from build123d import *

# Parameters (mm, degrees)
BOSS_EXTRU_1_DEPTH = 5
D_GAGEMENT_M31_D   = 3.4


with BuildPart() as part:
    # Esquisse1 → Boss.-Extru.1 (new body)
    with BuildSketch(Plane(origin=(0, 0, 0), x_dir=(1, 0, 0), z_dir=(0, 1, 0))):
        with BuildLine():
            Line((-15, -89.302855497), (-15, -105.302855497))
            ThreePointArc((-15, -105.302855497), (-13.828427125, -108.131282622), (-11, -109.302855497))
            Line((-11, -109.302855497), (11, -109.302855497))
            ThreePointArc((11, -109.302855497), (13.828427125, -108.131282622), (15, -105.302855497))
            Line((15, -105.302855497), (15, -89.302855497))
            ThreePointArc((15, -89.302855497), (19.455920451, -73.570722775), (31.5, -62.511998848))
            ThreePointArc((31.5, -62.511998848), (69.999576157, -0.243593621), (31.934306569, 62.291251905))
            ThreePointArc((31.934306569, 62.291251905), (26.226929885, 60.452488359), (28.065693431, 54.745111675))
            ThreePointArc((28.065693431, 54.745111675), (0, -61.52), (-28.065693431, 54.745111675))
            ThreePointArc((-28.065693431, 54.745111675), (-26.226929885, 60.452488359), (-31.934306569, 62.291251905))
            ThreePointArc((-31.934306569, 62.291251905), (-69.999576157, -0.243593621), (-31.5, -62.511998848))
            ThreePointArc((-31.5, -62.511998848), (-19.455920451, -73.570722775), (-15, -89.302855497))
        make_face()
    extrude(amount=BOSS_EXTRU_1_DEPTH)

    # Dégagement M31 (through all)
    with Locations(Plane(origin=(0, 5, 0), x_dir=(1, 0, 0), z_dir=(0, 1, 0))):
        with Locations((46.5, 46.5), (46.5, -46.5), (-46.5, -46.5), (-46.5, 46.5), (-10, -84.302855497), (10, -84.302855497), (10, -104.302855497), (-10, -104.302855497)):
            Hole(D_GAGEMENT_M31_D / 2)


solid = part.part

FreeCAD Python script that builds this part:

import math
import FreeCAD as App
import Part
import Sketcher

doc = App.newDocument("Part")
body = doc.addObject("PartDesign::Body", "Body")

sketch1 = body.newObject("Sketcher::SketchObject", "Sketch")
sketch1.AttachmentSupport = (doc.getObject("XZ_Plane"), [""])
sketch1.MapMode = "FlatFace"
sketch1.addGeometry([
    Part.LineSegment(App.Vector(-15, 89.3, 0), App.Vector(-15, 105.3, 0)),
    Part.ArcOfCircle(Part.Circle(App.Vector(-11, 105.3, 0), App.Vector(0, 0, 1), 4), math.radians(90), math.radians(180)),
    Part.LineSegment(App.Vector(-11, 109.3, 0), App.Vector(11, 109.3, 0)),
    Part.ArcOfCircle(Part.Circle(App.Vector(11, 105.3, 0), App.Vector(0, 0, 1), 4), math.radians(0), math.radians(90)),
    Part.LineSegment(App.Vector(15, 105.3, 0), App.Vector(15, 89.3, 0)),
    Part.ArcOfCircle(Part.Circle(App.Vector(45, 89.3, 0), App.Vector(0, 0, 1), 30), math.radians(180), math.radians(243)),
    Part.ArcOfCircle(Part.Circle(App.Vector(0, 0, 0), App.Vector(0, 0, 1), 70), math.radians(-63), math.radians(63)),
    Part.ArcOfCircle(Part.Circle(App.Vector(30, -58.5, 0), App.Vector(0, 0, 1), 4.2), math.radians(117), math.radians(297)),
    Part.ArcOfCircle(Part.Circle(App.Vector(0, 0, 0), App.Vector(0, 0, 1), 61.5), math.radians(-63), math.radians(243)),
    Part.ArcOfCircle(Part.Circle(App.Vector(-30, -58.5, 0), App.Vector(0, 0, 1), 4.2), math.radians(-117), math.radians(63)),
    Part.ArcOfCircle(Part.Circle(App.Vector(0, 0, 0), App.Vector(0, 0, 1), 70), math.radians(117), math.radians(243)),
    Part.ArcOfCircle(Part.Circle(App.Vector(-45, 89.3, 0), App.Vector(0, 0, 1), 30), math.radians(-63), math.radians(0)),
], False)
sketch1.addConstraint([
    Sketcher.Constraint("Tangent", 0, 2, 1, 2),
    Sketcher.Constraint("Tangent", 1, 1, 2, 1),
    Sketcher.Constraint("Tangent", 2, 2, 3, 2),
    Sketcher.Constraint("Tangent", 3, 1, 4, 1),
    Sketcher.Constraint("Tangent", 4, 2, 5, 1),
    Sketcher.Constraint("Tangent", 5, 2, 6, 2),
    Sketcher.Constraint("Tangent", 6, 1, 7, 2),
    Sketcher.Constraint("Tangent", 7, 1, 8, 1),
    Sketcher.Constraint("Tangent", 8, 2, 9, 2),
    Sketcher.Constraint("Tangent", 9, 1, 10, 2),
    Sketcher.Constraint("Tangent", 10, 1, 11, 1),
    Sketcher.Constraint("Tangent", 11, 2, 0, 1),
    Sketcher.Constraint("Vertical", 0),
    Sketcher.Constraint("Horizontal", 2),
    Sketcher.Constraint("Vertical", 4),
    Sketcher.Constraint("Coincident", 6, 3, -1, 1),
    Sketcher.Constraint("Coincident", 8, 3, -1, 1),
    Sketcher.Constraint("Coincident", 10, 3, -1, 1),
    Sketcher.Constraint("Equal", 1, 3),
    Sketcher.Constraint("Equal", 7, 9),
    Sketcher.Constraint("Equal", 5, 11),
    Sketcher.Constraint("Horizontal", 7, 3, 9, 3),
    Sketcher.Constraint("Horizontal", 5, 3, 11, 3),
    Sketcher.Constraint("Radius", 1, 4.0),
    Sketcher.Constraint("Radius", 5, 30.0),
    Sketcher.Constraint("Radius", 6, 70.0),
    Sketcher.Constraint("DistanceX", 2, 1, 2, 2, 22.0),
    Sketcher.Constraint("DistanceY", 0, 1, 0, 2, 16.0),
    Sketcher.Constraint("Radius", 7, 4.24),
    Sketcher.Constraint("DistanceX", -1, 1, 7, 3, 30.0),
])
pad1 = body.newObject("PartDesign::Pad", "Pad")
pad1.Profile = sketch1
pad1.Length = 5
pad1.Reversed = True

sketch2 = body.newObject("Sketcher::SketchObject", "Sketch001")
sketch2.AttachmentSupport = (doc.getObject("XZ_Plane"), [""])
sketch2.MapMode = "FlatFace"
sketch2.AttachmentOffset = App.Placement(App.Vector(0, 0, -5), App.Rotation())
sketch2.addGeometry([
    Part.Circle(App.Vector(46.5, -46.5, 0), App.Vector(0, 0, 1), 1.7),
    Part.Circle(App.Vector(46.5, 46.5, 0), App.Vector(0, 0, 1), 1.7),
    Part.Circle(App.Vector(-46.5, 46.5, 0), App.Vector(0, 0, 1), 1.7),
    Part.Circle(App.Vector(-46.5, -46.5, 0), App.Vector(0, 0, 1), 1.7),
    Part.Circle(App.Vector(-10, 84.3, 0), App.Vector(0, 0, 1), 1.7),
    Part.Circle(App.Vector(10, 84.3, 0), App.Vector(0, 0, 1), 1.7),
    Part.Circle(App.Vector(10, 104.3, 0), App.Vector(0, 0, 1), 1.7),
    Part.Circle(App.Vector(-10, 104.3, 0), App.Vector(0, 0, 1), 1.7),
], False)
sketch2.addConstraint([
    Sketcher.Constraint("Equal", 0, 1),
    Sketcher.Constraint("Equal", 1, 2),
    Sketcher.Constraint("Equal", 2, 3),
    Sketcher.Constraint("Equal", 3, 4),
    Sketcher.Constraint("Equal", 4, 5),
    Sketcher.Constraint("Equal", 5, 6),
    Sketcher.Constraint("Equal", 6, 7),
    Sketcher.Constraint("Symmetric", 0, 3, 2, 3, -1, 1),
    Sketcher.Constraint("Symmetric", 1, 3, 3, 3, -1, 1),
    Sketcher.Constraint("Symmetric", 1, 3, 2, 3, -2),
    Sketcher.Constraint("Symmetric", 4, 3, 5, 3, -2),
    Sketcher.Constraint("Symmetric", 6, 3, 7, 3, -2),
    Sketcher.Constraint("Vertical", 5, 3, 6, 3),
    Sketcher.Constraint("Diameter", 0, 3.4),
    Sketcher.Constraint("DistanceX", 4, 3, -1, 1, 10.0),
    Sketcher.Constraint("DistanceY", 0, 3, 1, 3, 93.0),
    Sketcher.Constraint("DistanceX", 2, 3, 1, 3, 93.0),
    Sketcher.Constraint("DistanceY", 5, 3, 6, 3, 20.0),
    Sketcher.Constraint("DistanceY", -1, 1, 4, 3, 84.302855),
])
doc.recompute()
hole = body.newObject("PartDesign::Hole", "Hole")
hole.Profile = sketch2
hole.ThreadType = "None"
hole.Diameter = 3.4
hole.DepthType = "ThroughAll"
hole.Reversed = True

doc.recompute()
